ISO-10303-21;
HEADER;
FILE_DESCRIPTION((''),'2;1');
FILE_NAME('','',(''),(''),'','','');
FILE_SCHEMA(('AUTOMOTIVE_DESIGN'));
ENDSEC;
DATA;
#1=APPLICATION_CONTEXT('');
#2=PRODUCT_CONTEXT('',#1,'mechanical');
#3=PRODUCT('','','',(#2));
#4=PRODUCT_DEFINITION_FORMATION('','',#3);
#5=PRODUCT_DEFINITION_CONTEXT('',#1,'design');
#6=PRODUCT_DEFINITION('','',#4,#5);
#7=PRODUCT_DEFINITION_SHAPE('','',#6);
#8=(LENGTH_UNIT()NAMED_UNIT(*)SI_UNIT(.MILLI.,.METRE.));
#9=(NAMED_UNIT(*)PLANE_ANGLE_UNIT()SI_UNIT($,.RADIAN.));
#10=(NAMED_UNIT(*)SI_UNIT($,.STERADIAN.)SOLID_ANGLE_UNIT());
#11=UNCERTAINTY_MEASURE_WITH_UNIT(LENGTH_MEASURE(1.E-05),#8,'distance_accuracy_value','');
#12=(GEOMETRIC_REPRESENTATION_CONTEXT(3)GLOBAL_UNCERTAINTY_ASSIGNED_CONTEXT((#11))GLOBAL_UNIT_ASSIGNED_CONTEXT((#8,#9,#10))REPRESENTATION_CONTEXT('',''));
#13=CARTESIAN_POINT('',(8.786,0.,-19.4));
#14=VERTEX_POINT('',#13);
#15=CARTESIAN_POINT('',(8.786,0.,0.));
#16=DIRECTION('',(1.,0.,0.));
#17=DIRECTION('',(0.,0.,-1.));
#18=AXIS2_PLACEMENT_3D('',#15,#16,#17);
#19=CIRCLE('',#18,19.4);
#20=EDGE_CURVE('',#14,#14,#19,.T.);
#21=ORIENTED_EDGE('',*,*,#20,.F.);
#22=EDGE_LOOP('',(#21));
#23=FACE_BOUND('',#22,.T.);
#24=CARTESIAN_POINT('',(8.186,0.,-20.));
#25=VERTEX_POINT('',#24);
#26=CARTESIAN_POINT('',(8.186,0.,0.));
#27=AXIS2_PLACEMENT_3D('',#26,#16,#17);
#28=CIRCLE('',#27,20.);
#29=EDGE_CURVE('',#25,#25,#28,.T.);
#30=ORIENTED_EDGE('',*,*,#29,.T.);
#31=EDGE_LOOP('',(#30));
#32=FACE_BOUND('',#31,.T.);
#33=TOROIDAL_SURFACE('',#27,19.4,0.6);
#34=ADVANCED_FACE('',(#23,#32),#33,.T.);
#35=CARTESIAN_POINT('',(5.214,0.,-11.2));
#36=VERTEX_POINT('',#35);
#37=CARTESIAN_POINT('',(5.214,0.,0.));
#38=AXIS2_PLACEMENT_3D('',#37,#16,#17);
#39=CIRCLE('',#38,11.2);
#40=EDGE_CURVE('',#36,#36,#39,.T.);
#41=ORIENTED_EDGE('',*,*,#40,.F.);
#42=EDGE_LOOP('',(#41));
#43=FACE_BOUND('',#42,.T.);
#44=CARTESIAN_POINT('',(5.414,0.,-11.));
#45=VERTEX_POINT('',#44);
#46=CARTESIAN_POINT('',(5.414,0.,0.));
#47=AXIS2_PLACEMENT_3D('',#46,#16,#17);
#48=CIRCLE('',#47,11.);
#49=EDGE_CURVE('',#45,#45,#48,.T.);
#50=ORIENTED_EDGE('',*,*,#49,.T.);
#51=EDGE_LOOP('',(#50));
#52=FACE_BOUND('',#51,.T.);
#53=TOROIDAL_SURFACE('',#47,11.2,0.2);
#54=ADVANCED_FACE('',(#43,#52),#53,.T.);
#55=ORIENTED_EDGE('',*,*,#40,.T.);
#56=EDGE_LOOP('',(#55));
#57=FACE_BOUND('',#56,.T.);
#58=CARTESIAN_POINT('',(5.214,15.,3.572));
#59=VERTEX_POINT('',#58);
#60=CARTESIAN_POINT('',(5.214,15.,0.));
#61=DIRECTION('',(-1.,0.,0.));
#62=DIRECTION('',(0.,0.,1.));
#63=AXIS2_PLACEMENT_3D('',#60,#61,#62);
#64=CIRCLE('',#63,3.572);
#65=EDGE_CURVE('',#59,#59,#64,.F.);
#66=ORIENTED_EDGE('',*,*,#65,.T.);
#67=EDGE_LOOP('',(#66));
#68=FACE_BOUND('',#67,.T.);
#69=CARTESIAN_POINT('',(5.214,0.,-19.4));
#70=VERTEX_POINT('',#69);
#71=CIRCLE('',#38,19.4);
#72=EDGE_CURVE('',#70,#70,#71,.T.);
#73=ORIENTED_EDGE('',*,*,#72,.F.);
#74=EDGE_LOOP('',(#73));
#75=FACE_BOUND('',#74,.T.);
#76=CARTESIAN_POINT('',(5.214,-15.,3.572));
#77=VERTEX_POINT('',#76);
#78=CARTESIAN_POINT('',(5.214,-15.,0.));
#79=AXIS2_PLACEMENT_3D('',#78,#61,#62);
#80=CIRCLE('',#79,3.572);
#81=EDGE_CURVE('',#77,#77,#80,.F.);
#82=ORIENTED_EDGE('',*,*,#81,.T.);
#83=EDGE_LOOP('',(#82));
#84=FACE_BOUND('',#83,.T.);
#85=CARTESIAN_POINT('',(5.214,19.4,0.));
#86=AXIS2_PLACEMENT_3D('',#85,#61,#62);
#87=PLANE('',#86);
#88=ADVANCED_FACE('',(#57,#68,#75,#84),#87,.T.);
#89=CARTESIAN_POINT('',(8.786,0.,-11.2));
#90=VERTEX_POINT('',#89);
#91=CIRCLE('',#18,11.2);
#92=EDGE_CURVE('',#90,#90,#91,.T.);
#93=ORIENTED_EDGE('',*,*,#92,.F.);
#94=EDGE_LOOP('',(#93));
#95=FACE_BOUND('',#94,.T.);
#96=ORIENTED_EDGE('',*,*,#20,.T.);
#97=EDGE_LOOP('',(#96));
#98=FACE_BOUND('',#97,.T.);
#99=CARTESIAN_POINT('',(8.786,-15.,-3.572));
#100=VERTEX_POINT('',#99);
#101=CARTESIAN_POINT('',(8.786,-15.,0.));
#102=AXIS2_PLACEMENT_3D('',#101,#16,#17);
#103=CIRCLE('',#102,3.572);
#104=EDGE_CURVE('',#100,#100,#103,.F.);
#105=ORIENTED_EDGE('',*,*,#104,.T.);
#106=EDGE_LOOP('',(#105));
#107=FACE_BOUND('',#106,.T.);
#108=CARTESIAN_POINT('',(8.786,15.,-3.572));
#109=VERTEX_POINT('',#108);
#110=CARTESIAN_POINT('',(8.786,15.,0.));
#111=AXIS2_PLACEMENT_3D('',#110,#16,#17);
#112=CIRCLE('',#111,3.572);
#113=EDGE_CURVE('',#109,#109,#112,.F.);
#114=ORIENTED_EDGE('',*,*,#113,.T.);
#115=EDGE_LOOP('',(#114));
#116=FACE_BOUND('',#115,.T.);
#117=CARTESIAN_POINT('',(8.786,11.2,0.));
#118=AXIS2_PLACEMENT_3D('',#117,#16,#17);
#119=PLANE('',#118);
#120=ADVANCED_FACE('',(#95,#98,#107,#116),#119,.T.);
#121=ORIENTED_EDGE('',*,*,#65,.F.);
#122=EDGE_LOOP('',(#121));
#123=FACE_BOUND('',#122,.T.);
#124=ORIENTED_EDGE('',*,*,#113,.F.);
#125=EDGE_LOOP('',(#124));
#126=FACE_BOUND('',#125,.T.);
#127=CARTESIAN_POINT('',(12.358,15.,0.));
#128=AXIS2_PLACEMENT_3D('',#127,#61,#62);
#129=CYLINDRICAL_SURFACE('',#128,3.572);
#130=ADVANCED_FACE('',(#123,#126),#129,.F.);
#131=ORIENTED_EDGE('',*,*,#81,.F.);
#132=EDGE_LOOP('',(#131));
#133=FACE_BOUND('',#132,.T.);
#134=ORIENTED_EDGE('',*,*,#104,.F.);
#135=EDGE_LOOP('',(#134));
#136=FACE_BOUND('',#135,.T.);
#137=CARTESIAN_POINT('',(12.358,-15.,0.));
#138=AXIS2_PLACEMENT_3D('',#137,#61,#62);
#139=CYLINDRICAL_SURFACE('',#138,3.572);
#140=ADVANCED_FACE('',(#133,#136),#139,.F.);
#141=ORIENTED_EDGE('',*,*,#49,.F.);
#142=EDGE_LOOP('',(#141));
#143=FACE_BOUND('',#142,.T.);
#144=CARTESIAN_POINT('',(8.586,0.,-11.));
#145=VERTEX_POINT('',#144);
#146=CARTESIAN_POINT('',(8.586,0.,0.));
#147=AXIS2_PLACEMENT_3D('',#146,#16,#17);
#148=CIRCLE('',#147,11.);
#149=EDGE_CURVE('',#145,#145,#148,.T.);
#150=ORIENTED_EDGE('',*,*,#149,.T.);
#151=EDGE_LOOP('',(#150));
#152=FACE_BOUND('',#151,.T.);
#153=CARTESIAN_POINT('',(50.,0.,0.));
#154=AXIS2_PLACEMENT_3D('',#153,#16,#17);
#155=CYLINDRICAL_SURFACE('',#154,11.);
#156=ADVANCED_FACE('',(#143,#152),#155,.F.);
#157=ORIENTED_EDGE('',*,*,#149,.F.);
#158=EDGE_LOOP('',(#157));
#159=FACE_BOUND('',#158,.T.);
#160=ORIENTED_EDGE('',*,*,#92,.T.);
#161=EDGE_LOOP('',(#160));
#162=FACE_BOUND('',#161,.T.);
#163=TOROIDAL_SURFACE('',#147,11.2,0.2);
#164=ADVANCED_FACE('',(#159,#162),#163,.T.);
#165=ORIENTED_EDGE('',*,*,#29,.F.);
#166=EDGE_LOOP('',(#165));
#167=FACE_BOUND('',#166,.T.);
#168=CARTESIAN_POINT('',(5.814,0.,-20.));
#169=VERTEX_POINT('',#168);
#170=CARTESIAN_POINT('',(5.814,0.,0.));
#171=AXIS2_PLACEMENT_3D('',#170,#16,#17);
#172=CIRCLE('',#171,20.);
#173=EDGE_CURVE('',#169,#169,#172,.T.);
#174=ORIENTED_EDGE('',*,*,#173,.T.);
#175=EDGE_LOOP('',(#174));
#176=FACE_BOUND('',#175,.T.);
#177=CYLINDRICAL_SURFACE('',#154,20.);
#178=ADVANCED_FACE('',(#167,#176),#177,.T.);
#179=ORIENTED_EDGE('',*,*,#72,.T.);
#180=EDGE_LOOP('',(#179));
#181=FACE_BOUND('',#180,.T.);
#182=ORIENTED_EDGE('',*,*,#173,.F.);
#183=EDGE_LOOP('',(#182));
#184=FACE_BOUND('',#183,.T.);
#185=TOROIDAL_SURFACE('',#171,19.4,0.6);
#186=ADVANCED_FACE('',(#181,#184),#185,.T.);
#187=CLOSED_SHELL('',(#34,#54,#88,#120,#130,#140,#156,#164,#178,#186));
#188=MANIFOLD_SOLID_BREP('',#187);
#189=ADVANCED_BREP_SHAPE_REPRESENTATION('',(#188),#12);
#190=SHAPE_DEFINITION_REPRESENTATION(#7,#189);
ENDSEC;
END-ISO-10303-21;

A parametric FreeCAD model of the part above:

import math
import FreeCAD as App
import Part
import Sketcher

V = App.Vector
Q = App.Units.Quantity

doc = App.newDocument("Part")
body = doc.addObject("PartDesign::Body", "Body")

# Sketch on XY plane
sketch1 = body.newObject("Sketcher::SketchObject", "Sketch")
sketch1.AttachmentSupport = (doc.getObject("XY_Plane"), [""])
sketch1.MapMode = "FlatFace"
sketch1.addGeometry([
    Part.LineSegment(V(5.21, 19.4, 0), V(5.21, 11.2, 0)),  # 0
    Part.ArcOfCircle(Part.Circle(V(5.41, 11.2, 0), V(0, 0, 1), 0.2), math.radians(-180), math.radians(-90)),  # 1
    Part.LineSegment(V(5.41, 11, 0), V(8.59, 11, 0)),  # 2
    Part.ArcOfCircle(Part.Circle(V(8.59, 11.2, 0), V(0, 0, 1), 0.2), math.radians(-90), math.radians(0)),  # 3
    Part.LineSegment(V(8.79, 11.2, 0), V(8.79, 19.4, 0)),  # 4
    Part.ArcOfCircle(Part.Circle(V(8.19, 19.4, 0), V(0, 0, 1), 0.6), math.radians(0), math.radians(90)),  # 5
    Part.LineSegment(V(8.19, 20, 0), V(5.81, 20, 0)),  # 6
    Part.ArcOfCircle(Part.Circle(V(5.81, 19.4, 0), V(0, 0, 1), 0.6), math.radians(90), math.radians(180)),  # 7
], False)
sketch1.addConstraint([
    Sketcher.Constraint("Tangent", 0, 2, 1, 1),
    Sketcher.Constraint("Tangent", 1, 2, 2, 1),
    Sketcher.Constraint("Tangent", 2, 2, 3, 1),
    Sketcher.Constraint("Tangent", 3, 2, 4, 1),
    Sketcher.Constraint("Tangent", 4, 2, 5, 1),
    Sketcher.Constraint("Tangent", 5, 2, 6, 1),
    Sketcher.Constraint("Tangent", 6, 2, 7, 1),
    Sketcher.Constraint("Tangent", 7, 2, 0, 1),
    Sketcher.Constraint("Vertical", 0),
    Sketcher.Constraint("Horizontal", 2),
    Sketcher.Constraint("Vertical", 4),
    Sketcher.Constraint("Horizontal", 6),
    Sketcher.Constraint("Equal", 1, 3),
    Sketcher.Constraint("Equal", 5, 7),
    Sketcher.Constraint("Radius", 1, Q("0.2 mm")),
    Sketcher.Constraint("Radius", 5, Q("0.6 mm")),
    Sketcher.Constraint("DistanceY", 0, 2, 0, 1, Q("8.2 mm")),
    Sketcher.Constraint("DistanceY", -1, 1, 1, 2, Q("11 mm")),
    Sketcher.Constraint("DistanceX", 2, 1, 2, 2, Q("3.172 mm")),
    Sketcher.Constraint("DistanceX", -1, 1, 1, 3, Q("5.414 mm")),
])
revolution = body.newObject("PartDesign::Revolution", "Revolution")
revolution.Profile = sketch1
revolution.ReferenceAxis = (sketch1, ["H_Axis"])
revolution.Angle = 360

# Sketch on YZ plane
sketch2 = body.newObject("Sketcher::SketchObject", "Sketch001")
sketch2.AttachmentSupport = (doc.getObject("YZ_Plane"), [""])
sketch2.MapMode = "FlatFace"
sketch2.addGeometry(Part.Circle(V(15, 0, 0), V(0, 0, 1), 3.6), False)
sketch2.addConstraint([
    Sketcher.Constraint("PointOnObject", 0, 3, -1),
    Sketcher.Constraint("Diameter", 0, Q("7.144 mm")),
    Sketcher.Constraint("DistanceX", -1, 1, 0, 3, Q("15 mm")),
])
pocket1 = body.newObject("PartDesign::Pocket", "Pocket")
pocket1.Profile = sketch2
pocket1.Length = 12.358
pocket1.Reversed = True

# Sketch on YZ plane
sketch3 = body.newObject("Sketcher::SketchObject", "Sketch002")
sketch3.AttachmentSupport = (doc.getObject("YZ_Plane"), [""])
sketch3.MapMode = "FlatFace"
sketch3.addGeometry(Part.Circle(V(-15, 0, 0), V(0, 0, 1), 3.6), False)
sketch3.addConstraint([
    Sketcher.Constraint("PointOnObject", 0, 3, -1),
    Sketcher.Constraint("Diameter", 0, Q("7.144 mm")),
    Sketcher.Constraint("DistanceX", 0, 3, -1, 1, Q("15 mm")),
])
pocket2 = body.newObject("PartDesign::Pocket", "Pocket001")
pocket2.Profile = sketch3
pocket2.Length = 12.358
pocket2.Reversed = True

doc.recompute()
